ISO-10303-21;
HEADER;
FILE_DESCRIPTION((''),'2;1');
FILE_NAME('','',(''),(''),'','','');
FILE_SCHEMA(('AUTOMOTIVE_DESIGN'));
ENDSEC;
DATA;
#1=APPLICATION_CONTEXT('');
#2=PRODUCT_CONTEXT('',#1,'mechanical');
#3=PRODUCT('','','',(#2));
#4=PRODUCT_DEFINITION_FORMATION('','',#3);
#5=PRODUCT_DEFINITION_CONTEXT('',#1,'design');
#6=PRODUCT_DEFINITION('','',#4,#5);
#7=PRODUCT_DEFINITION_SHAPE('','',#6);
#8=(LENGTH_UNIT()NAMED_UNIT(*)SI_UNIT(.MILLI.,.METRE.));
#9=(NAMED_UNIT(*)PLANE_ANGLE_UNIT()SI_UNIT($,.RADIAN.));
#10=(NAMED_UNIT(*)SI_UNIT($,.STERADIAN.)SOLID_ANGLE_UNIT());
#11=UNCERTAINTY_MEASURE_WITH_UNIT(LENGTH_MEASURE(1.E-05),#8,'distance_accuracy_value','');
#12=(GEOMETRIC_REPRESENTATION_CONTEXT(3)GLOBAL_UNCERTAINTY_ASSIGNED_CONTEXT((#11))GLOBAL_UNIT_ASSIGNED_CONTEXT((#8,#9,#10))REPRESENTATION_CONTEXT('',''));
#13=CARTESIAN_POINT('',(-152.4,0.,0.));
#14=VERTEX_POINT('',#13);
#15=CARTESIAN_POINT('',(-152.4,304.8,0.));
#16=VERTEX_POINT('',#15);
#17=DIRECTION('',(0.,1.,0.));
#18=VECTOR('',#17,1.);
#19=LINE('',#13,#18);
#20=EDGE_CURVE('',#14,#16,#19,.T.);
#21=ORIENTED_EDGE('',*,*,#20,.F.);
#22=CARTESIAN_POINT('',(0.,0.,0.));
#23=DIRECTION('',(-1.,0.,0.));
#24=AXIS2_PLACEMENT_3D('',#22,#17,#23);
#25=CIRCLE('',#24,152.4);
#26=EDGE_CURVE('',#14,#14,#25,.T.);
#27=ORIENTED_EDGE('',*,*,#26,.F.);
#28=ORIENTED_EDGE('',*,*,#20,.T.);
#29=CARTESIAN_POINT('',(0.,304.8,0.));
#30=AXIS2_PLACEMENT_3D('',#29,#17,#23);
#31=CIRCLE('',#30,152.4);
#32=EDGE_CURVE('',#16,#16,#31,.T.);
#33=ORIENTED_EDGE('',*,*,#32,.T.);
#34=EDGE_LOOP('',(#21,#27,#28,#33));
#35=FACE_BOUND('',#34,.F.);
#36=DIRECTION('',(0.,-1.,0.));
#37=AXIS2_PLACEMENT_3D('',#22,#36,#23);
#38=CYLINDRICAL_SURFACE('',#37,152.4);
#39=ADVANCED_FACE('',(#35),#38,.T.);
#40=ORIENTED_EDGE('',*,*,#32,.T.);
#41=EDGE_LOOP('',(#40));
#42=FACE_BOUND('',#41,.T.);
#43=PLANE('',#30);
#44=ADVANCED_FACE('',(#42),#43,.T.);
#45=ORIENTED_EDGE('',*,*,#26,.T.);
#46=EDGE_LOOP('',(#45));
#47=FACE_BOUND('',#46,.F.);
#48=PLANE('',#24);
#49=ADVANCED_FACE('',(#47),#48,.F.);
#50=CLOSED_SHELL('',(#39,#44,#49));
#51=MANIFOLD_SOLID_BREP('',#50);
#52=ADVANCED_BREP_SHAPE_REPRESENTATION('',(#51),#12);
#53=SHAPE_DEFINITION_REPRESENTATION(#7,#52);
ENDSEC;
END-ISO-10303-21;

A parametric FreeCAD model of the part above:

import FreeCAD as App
import Part
import Sketcher
from FreeCAD import Vector
Q = App.Units.Quantity

doc = App.newDocument("Part")
body = doc.addObject("PartDesign::Body", "Body")

sketch1 = body.newObject("Sketcher::SketchObject", "Sketch")
sketch1.AttachmentSupport = (doc.getObject("XZ_Plane"), [""])
sketch1.MapMode = "FlatFace"
sketch1.addGeometry(Part.Circle(Vector(0, 0, 0), Vector(0, 0, 1), 152.4), False)
sketch1.addConstraint([
    Sketcher.Constraint("Coincident", 0, 3, -1, 1),
    Sketcher.Constraint("Diameter", 0, Q("12 in")),
])
pad1 = body.newObject("PartDesign::Pad", "Pad")
pad1.Profile = sketch1
pad1.Length = Q("12 in")
pad1.Reversed = True

doc.recompute()
